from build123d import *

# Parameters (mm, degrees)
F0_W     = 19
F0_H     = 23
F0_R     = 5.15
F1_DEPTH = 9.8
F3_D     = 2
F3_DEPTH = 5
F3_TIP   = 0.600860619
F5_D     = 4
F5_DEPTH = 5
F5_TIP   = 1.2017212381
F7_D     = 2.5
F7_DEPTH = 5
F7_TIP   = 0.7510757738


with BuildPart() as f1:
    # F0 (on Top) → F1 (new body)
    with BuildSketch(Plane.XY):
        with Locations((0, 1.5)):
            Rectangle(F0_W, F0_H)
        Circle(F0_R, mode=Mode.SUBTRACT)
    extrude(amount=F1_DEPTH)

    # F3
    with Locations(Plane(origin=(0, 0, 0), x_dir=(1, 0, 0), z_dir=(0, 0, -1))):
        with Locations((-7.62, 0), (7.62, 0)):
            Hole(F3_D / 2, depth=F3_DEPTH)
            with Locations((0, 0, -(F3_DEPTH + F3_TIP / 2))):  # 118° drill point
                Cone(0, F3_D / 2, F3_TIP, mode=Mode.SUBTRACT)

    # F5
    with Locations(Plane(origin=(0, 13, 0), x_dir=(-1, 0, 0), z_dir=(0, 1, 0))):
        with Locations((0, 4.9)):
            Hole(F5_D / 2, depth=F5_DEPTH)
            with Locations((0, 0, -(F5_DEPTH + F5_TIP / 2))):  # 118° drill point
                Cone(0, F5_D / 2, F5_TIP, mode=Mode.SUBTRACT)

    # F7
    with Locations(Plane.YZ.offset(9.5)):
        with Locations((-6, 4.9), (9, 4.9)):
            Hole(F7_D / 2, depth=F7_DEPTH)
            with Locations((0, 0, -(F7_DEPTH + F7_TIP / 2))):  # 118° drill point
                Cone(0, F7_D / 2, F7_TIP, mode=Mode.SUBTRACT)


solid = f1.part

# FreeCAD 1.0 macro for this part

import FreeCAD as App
import Part
import Sketcher
Q = App.Units.Quantity

doc = App.newDocument("Part")
params = doc.addObject("Spreadsheet::Sheet", "Params")
for row, (alias, value) in enumerate([
    ("sketch1_diameter", "10.3 mm"),
    ("sketch1_width", "19 mm"),
    ("sketch1_height", "23 mm"),
    ("pad1_length", "9.8 mm"),
    ("sketch2_diameter", "2 mm"),
    ("hole_diameter", "2 mm"),
    ("hole_depth", "5 mm"),
    ("sketch3_diameter", "4 mm"),
    ("hole2_diameter", "4 mm"),
    ("hole2_depth", "5 mm"),
    ("sketch4_diameter", "2.5 mm"),
    ("hole3_diameter", "2.5 mm"),
    ("hole3_depth", "5 mm"),
], start=1):
    params.set(f"A{row}", alias)
    params.set(f"B{row}", "=" + value)
    params.setAlias(f"B{row}", alias)

body = doc.addObject("PartDesign::Body", "Body")

# Sketch on XY plane
sketch1 = body.newObject("Sketcher::SketchObject", "Sketch")
sketch1.AttachmentSupport = (doc.getObject("XY_Plane"), [""])
sketch1.MapMode = "FlatFace"
sketch1.addGeometry([
    Part.LineSegment(App.Vector(-10, 13, 0), App.Vector(-10, -10, 0)),  # 0
    Part.LineSegment(App.Vector(-10, -10, 0), App.Vector(10, -10, 0)),  # 1
    Part.LineSegment(App.Vector(10, -10, 0), App.Vector(10, 13, 0)),  # 2
    Part.LineSegment(App.Vector(10, 13, 0), App.Vector(-10, 13, 0)),  # 3
    Part.Circle(App.Vector(0, 0, 0), App.Vector(0, 0, 1), 5),  # 4
], False)
sketch1.addConstraint([
    Sketcher.Constraint("Coincident", 0, 2, 1, 1),
    Sketcher.Constraint("Coincident", 1, 2, 2, 1),
    Sketcher.Constraint("Coincident", 2, 2, 3, 1),
    Sketcher.Constraint("Coincident", 3, 2, 0, 1),
    Sketcher.Constraint("Vertical", 0),
    Sketcher.Constraint("Horizontal", 1),
    Sketcher.Constraint("Vertical", 2),
    Sketcher.Constraint("Horizontal", 3),
    Sketcher.Constraint("Coincident", 4, 3, -1, 1),
    Sketcher.Constraint("Diameter", 4, Q("10.3 mm")),
    Sketcher.Constraint("DistanceX", 1, 1, 1, 2, Q("19 mm")),
    Sketcher.Constraint("DistanceY", 0, 2, 0, 1, Q("23 mm")),
    Sketcher.Constraint("DistanceY", 0, 2, -1, 1, Q("10 mm")),
    Sketcher.Constraint("DistanceX", 0, 2, -1, 1, Q("9.5 mm")),
])
sketch1.setExpression("Constraints[9]", "Params.sketch1_diameter")
sketch1.setExpression("Constraints[10]", "Params.sketch1_width")
sketch1.setExpression("Constraints[11]", "Params.sketch1_height")
pad1 = body.newObject("PartDesign::Pad", "Pad")
pad1.Profile = sketch1
pad1.setExpression("Length", "Params.pad1_length")

# Sketch on XY plane
sketch2 = body.newObject("Sketcher::SketchObject", "Sketch001")
sketch2.AttachmentSupport = (doc.getObject("XY_Plane"), [""])
sketch2.MapMode = "FlatFace"
sketch2.addGeometry([
    Part.Circle(App.Vector(-7.6, 0, 0), App.Vector(0, 0, 1), 1),
    Part.Circle(App.Vector(7.6, 0, 0), App.Vector(0, 0, 1), 1),
], False)
sketch2.addConstraint([
    Sketcher.Constraint("Equal", 0, 1),
    Sketcher.Constraint("Symmetric", 0, 3, 1, 3, -1, 1),
    Sketcher.Constraint("PointOnObject", 0, 3, -1),
    Sketcher.Constraint("Diameter", 0, Q("2 mm")),
    Sketcher.Constraint("DistanceX", 0, 3, -1, 1, Q("7.62 mm")),
])
sketch2.setExpression("Constraints[3]", "Params.sketch2_diameter")
doc.recompute()
hole = body.newObject("PartDesign::Hole", "Hole")
hole.Profile = sketch2
hole.ThreadType = "None"
hole.setExpression("Diameter", "Params.hole_diameter")
hole.DepthType = "Dimension"
hole.setExpression("Depth", "Params.hole_depth")
hole.DrillPoint = "Angled"
hole.DrillPointAngle = 118
hole.Reversed = True

# Sketch on XZ plane
sketch3 = body.newObject("Sketcher::SketchObject", "Sketch002")
sketch3.AttachmentSupport = (doc.getObject("XZ_Plane"), [""])
sketch3.MapMode = "FlatFace"
sketch3.AttachmentOffset = App.Placement(App.Vector(0, 0, -13), App.Rotation())
sketch3.addGeometry(Part.Circle(App.Vector(0, 4.9, 0), App.Vector(0, 0, 1), 2), False)
sketch3.addConstraint([
    Sketcher.Constraint("PointOnObject", 0, 3, -2),
    Sketcher.Constraint("Diameter", 0, Q("4 mm")),
    Sketcher.Constraint("DistanceY", -1, 1, 0, 3, Q("4.9 mm")),
])
sketch3.setExpression("Constraints[1]", "Params.sketch3_diameter")
doc.recompute()
hole2 = body.newObject("PartDesign::Hole", "Hole001")
hole2.Profile = sketch3
hole2.ThreadType = "None"
hole2.setExpression("Diameter", "Params.hole2_diameter")
hole2.DepthType = "Dimension"
hole2.setExpression("Depth", "Params.hole2_depth")
hole2.DrillPoint = "Angled"
hole2.DrillPointAngle = 118
hole2.Reversed = True

# Sketch on YZ plane
sketch4 = body.newObject("Sketcher::SketchObject", "Sketch003")
sketch4.AttachmentSupport = (doc.getObject("YZ_Plane"), [""])
sketch4.MapMode = "FlatFace"
sketch4.AttachmentOffset = App.Placement(App.Vector(0, 0, 9.5), App.Rotation())
sketch4.addGeometry([
    Part.Circle(App.Vector(-6, 4.9, 0), App.Vector(0, 0, 1), 1.2),
    Part.Circle(App.Vector(9, 4.9, 0), App.Vector(0, 0, 1), 1.2),
], False)
sketch4.addConstraint([
    Sketcher.Constraint("Equal", 0, 1),
    Sketcher.Constraint("Horizontal", 0, 3, 1, 3),
    Sketcher.Constraint("Diameter", 0, Q("2.5 mm")),
    Sketcher.Constraint("DistanceX", 0, 3, -1, 1, Q("6 mm")),
    Sketcher.Constraint("DistanceX", -1, 1, 1, 3, Q("9 mm")),
    Sketcher.Constraint("DistanceY", -1, 1, 0, 3, Q("4.9 mm")),
])
sketch4.setExpression("Constraints[2]", "Params.sketch4_diameter")
doc.recompute()
hole3 = body.newObject("PartDesign::Hole", "Hole002")
hole3.Profile = sketch4
hole3.ThreadType = "None"
hole3.setExpression("Diameter", "Params.hole3_diameter")
hole3.DepthType = "Dimension"
hole3.setExpression("Depth", "Params.hole3_depth")
hole3.DrillPoint = "Angled"
hole3.DrillPointAngle = 118

doc.recompute()
